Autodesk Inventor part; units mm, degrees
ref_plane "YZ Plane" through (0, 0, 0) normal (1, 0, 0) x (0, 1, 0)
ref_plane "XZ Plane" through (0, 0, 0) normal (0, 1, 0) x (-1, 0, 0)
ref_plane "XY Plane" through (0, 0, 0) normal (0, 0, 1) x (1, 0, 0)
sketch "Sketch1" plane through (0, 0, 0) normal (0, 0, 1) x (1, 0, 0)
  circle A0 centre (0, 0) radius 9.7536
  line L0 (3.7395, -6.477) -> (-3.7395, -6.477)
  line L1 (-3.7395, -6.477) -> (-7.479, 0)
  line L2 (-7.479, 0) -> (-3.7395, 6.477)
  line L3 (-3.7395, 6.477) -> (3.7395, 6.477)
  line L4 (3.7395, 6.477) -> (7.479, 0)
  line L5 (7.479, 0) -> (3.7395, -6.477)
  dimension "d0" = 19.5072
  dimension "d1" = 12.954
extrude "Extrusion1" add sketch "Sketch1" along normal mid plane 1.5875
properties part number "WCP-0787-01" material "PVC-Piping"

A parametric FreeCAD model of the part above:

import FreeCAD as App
import Part
import Sketcher
from FreeCAD import Vector
Q = App.Units.Quantity

doc = App.newDocument("Part")
body = doc.addObject("PartDesign::Body", "Body")

# Sketch on XY plane
sketch1 = doc.addObject("Sketcher::SketchObject", "Sketch")
body.addObject(sketch1)
sketch1.AttachmentSupport = (doc.XY_Plane, [""])
sketch1.MapMode = "FlatFace"
sketch1.addGeometry([
    Part.Circle(Vector(0, 0, 0), Vector(0, 0, 1), 10),  # 0
    Part.LineSegment(Vector(7, 0, 0), Vector(4, -6, 0)),  # 1
    Part.LineSegment(Vector(4, -6, 0), Vector(-4, -6, 0)),  # 2
    Part.LineSegment(Vector(-4, -6, 0), Vector(-7, 0, 0)),  # 3
    Part.LineSegment(Vector(-7, 0, 0), Vector(-4, 6, 0)),  # 4
    Part.LineSegment(Vector(-4, 6, 0), Vector(4, 6, 0)),  # 5
    Part.LineSegment(Vector(4, 6, 0), Vector(7, 0, 0)),  # 6
], False)
sketch1.addConstraint([
    Sketcher.Constraint("Coincident", 1, 2, 2, 1),
    Sketcher.Constraint("Coincident", 2, 2, 3, 1),
    Sketcher.Constraint("Coincident", 3, 2, 4, 1),
    Sketcher.Constraint("Coincident", 4, 2, 5, 1),
    Sketcher.Constraint("Coincident", 5, 2, 6, 1),
    Sketcher.Constraint("Coincident", 6, 2, 1, 1),
    Sketcher.Constraint("Horizontal", 2),
    Sketcher.Constraint("Horizontal", 5),
    Sketcher.Constraint("Coincident", 0, 3, -1, 1),
    Sketcher.Constraint("Symmetric", 1, 2, 4, 2, -1, 1),
    Sketcher.Constraint("Symmetric", 3, 2, 6, 2, -1, 1),
    Sketcher.Constraint("PointOnObject", 3, 2, -1),
    Sketcher.Constraint("Parallel", 3, 6),
    Sketcher.Constraint("Vertical", 2, 2, 4, 2),
    Sketcher.Constraint("Diameter", 0, Q("0.768 in")),
    Sketcher.Constraint("DistanceY", 2, 2, 4, 2, Q("0.51 in")),
    Sketcher.Constraint("Angle", 1, Q("-120 deg")),
    Sketcher.Constraint("DistanceX", 2, 2, 2, 1, 7.479),
])
pad1 = doc.addObject("PartDesign::Pad", "Pad")
body.addObject(pad1)
pad1.Profile = sketch1
pad1.Length = Q("0.0625 in")
pad1.Midplane = True

doc.recompute()
